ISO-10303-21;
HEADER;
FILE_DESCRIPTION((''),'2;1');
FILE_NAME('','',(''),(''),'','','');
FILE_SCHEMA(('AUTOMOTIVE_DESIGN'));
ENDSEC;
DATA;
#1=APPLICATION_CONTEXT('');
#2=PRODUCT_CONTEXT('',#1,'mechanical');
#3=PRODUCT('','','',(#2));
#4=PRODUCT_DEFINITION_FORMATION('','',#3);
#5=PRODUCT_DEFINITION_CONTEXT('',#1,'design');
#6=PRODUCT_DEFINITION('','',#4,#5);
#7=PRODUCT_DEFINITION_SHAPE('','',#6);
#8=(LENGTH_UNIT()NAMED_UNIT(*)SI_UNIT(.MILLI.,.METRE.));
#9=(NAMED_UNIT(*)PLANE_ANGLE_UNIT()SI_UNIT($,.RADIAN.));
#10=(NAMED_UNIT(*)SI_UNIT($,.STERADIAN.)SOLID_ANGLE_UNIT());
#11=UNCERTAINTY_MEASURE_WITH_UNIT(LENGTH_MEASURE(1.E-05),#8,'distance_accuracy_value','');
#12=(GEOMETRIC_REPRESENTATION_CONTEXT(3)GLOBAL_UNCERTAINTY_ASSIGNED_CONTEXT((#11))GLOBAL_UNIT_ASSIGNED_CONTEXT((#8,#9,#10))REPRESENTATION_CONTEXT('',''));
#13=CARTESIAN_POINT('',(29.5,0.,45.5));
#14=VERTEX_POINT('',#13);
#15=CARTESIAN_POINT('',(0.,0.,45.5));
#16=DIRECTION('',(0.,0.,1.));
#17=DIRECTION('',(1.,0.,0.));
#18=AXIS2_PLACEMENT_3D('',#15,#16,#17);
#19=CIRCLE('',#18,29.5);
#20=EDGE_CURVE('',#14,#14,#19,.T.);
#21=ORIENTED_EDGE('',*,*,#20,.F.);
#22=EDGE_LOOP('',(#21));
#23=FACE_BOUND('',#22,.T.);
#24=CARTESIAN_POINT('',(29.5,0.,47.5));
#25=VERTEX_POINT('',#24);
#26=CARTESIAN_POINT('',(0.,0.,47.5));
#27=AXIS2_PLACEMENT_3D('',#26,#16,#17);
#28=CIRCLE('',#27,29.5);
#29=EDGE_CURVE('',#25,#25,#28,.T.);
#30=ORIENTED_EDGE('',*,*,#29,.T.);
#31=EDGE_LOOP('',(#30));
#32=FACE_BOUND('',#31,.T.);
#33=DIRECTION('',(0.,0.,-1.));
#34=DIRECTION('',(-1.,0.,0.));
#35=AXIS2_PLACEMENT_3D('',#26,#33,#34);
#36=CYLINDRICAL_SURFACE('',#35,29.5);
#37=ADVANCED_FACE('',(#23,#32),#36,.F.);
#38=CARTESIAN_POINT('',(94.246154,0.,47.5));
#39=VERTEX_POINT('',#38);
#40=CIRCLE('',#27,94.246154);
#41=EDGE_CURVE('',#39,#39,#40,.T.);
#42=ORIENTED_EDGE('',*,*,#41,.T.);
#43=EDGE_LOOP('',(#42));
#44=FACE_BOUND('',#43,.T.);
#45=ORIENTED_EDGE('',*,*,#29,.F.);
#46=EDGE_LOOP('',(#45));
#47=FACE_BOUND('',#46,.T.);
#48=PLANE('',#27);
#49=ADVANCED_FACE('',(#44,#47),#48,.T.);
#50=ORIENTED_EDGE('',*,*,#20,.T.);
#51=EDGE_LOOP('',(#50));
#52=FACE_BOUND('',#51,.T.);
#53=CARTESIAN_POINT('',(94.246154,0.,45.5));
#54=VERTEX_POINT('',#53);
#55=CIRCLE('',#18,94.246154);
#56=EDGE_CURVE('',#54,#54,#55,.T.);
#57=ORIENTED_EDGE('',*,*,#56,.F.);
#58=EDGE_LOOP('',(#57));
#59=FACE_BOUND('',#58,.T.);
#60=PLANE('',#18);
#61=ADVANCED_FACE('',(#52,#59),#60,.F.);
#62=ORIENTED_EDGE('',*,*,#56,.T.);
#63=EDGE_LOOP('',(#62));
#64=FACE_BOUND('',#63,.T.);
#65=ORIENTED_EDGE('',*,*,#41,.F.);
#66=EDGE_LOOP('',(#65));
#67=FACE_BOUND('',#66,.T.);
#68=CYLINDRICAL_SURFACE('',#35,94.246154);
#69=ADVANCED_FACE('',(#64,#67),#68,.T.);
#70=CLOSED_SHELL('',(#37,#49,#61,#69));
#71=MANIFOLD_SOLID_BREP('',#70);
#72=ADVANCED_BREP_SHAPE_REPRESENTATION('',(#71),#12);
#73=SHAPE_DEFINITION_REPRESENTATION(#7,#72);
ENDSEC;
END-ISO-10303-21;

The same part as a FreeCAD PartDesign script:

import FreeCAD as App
import Part
import Sketcher

V = App.Vector
Q = App.Units.Quantity

doc = App.newDocument("Part")
params = doc.addObject("Spreadsheet::Sheet", "Params")
for row, (alias, value) in enumerate([
    ("sketch1_diameter", "59 mm"),
    ("pad1_length", "2 mm"),
], start=1):
    params.set(f"A{row}", alias)
    params.set(f"B{row}", "=" + value)
    params.setAlias(f"B{row}", alias)

body = doc.addObject("PartDesign::Body", "Body")

sketch1 = body.newObject("Sketcher::SketchObject", "Sketch")
sketch1.AttachmentSupport = (doc.getObject("XY_Plane"), [""])
sketch1.MapMode = "FlatFace"
sketch1.AttachmentOffset = App.Placement(V(0, 0, 45.5), App.Rotation())
sketch1.addGeometry([
    Part.Circle(V(0, 0, 0), V(0, 0, 1), 94),
    Part.Circle(V(0, 0, 0), V(0, 0, 1), 30),
], False)
sketch1.addConstraint([
    Sketcher.Constraint("Coincident", 0, 3, -1, 1),
    Sketcher.Constraint("Coincident", 1, 3, -1, 1),
    Sketcher.Constraint("Diameter", 1, Q("59 mm")),
    Sketcher.Constraint("Diameter", 0, Q("188.492308 mm")),
])
sketch1.setExpression("Constraints[2]", "Params.sketch1_diameter")
pad1 = body.newObject("PartDesign::Pad", "Pad")
pad1.Profile = sketch1
pad1.setExpression("Length", "Params.pad1_length")

doc.recompute()
